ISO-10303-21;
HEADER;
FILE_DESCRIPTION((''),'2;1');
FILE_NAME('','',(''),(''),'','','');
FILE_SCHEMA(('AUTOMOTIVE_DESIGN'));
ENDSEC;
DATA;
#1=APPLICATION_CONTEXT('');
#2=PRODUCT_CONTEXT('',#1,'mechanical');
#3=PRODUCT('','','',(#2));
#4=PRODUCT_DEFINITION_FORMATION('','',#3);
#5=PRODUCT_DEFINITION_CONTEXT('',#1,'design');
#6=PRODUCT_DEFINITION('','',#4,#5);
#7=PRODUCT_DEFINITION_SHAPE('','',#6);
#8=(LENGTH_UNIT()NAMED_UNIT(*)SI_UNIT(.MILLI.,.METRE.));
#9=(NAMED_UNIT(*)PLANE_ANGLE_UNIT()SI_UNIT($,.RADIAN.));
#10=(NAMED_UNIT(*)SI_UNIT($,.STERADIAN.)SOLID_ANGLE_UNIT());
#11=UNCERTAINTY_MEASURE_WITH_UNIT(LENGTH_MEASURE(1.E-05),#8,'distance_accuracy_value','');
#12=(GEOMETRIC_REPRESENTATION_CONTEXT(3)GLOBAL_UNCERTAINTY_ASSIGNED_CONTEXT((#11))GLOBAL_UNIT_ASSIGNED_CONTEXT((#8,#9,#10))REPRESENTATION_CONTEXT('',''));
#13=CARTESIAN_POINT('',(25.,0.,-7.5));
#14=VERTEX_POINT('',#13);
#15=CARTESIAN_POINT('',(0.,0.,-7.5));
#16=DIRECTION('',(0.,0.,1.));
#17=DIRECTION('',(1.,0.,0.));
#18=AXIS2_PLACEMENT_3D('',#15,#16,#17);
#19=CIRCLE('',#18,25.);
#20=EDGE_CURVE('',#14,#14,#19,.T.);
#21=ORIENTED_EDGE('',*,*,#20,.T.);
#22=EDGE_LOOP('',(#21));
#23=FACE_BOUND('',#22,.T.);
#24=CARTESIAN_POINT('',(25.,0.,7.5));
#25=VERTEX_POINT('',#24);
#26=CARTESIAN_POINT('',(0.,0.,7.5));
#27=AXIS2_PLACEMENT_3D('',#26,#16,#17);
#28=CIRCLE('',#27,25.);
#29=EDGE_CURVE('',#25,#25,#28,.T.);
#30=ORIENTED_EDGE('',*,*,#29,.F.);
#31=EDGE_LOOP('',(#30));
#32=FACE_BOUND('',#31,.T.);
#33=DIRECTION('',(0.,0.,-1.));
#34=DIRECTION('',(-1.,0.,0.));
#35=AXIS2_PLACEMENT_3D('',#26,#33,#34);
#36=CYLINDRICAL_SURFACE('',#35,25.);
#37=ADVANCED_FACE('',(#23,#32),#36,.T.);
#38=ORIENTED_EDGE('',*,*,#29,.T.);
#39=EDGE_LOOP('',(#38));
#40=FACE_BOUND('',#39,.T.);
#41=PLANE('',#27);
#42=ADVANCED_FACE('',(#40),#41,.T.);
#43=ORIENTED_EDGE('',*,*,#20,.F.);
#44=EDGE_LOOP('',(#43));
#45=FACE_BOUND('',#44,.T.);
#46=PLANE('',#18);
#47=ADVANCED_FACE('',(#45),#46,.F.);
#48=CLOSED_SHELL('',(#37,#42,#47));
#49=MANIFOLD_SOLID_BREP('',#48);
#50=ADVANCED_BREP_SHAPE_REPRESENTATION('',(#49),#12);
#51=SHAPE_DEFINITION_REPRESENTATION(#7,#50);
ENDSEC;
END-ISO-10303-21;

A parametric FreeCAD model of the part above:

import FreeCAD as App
import Part
import Sketcher

V = App.Vector

doc = App.newDocument("Part")
body = doc.addObject("PartDesign::Body", "Body")

sketch1 = doc.addObject("Sketcher::SketchObject", "Sketch")
body.addObject(sketch1)
sketch1.AttachmentSupport = (doc.XY_Plane, [""])
sketch1.MapMode = "FlatFace"
sketch1.addGeometry(Part.Circle(V(0, 0, 0), V(0, 0, 1), 25), False)
sketch1.addConstraint(Sketcher.Constraint("Coincident", 0, 3, -1, 1))
sketch1.addConstraint(Sketcher.Constraint("Diameter", 0, 50.0))
pad1 = doc.addObject("PartDesign::Pad", "Pad")
body.addObject(pad1)
pad1.Profile = sketch1
pad1.Length = 15
pad1.Midplane = True

doc.recompute()
